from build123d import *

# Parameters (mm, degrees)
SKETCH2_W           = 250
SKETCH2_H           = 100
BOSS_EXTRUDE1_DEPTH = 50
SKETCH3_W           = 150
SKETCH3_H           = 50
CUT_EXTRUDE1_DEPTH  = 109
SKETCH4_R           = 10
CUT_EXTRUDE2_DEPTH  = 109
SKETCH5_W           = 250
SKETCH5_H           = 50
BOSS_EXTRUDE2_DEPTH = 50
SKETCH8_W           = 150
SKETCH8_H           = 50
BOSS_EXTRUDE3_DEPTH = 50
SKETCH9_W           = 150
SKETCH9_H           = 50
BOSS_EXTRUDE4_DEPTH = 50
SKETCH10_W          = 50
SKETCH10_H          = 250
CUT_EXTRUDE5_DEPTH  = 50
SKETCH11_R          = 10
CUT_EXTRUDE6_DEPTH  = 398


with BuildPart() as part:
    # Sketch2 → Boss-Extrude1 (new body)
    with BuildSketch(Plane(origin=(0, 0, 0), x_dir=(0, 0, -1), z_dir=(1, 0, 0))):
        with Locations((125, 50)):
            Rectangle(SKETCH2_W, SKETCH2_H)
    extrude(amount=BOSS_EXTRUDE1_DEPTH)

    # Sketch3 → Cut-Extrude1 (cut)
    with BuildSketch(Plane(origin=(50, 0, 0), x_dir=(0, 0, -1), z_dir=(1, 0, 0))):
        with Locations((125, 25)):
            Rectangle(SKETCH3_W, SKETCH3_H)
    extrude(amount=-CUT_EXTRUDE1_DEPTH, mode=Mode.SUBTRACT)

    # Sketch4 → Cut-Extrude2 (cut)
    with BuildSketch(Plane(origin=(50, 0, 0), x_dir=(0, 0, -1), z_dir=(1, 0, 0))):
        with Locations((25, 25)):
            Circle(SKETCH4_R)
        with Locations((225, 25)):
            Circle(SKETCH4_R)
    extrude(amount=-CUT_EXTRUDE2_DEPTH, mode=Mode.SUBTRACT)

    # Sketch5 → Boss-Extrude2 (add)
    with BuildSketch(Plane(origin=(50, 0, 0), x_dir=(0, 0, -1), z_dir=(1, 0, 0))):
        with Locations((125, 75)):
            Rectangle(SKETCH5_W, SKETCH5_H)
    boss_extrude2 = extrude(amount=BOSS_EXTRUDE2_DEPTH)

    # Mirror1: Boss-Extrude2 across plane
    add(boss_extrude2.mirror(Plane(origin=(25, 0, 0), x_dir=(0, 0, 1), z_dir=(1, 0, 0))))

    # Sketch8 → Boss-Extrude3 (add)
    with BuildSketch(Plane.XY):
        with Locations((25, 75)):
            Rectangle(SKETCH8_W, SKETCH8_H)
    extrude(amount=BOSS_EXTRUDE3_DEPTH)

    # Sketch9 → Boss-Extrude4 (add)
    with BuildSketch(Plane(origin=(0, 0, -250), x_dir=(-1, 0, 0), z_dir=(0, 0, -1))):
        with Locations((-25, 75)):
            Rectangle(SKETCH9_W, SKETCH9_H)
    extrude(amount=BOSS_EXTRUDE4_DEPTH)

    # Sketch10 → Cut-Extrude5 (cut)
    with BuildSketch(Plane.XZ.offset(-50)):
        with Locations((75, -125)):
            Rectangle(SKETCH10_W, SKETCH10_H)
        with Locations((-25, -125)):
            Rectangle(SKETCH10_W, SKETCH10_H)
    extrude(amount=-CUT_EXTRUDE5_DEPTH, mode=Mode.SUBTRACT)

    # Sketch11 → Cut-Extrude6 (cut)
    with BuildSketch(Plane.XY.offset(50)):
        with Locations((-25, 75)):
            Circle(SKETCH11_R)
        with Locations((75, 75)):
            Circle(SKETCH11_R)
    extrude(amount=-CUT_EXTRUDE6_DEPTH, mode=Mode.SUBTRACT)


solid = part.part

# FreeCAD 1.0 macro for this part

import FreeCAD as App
import Part
import Sketcher

V = App.Vector


def add_polygon(sketch, points):
    """Adds a closed chain of lines whose ends are joined by coincident constraints."""
    first, n = sketch.GeometryCount, len(points)
    for a, b in zip(points, points[1:] + points[:1]):
        sketch.addGeometry(Part.LineSegment(App.Vector(*a, 0), App.Vector(*b, 0)), False)
    for i in range(n):
        sketch.addConstraint(Sketcher.Constraint("Coincident", first + i, 2, first + (i + 1) % n, 1))

doc = App.newDocument("Part")
params = doc.addObject("Spreadsheet::Sheet", "Params")
for row, (alias, value) in enumerate([
    ("sketch1_width", "100 mm"),
    ("sketch1_height", "250 mm"),
    ("pad1_length", "50 mm"),
    ("sketch2_width", "50 mm"),
    ("sketch2_height", "150 mm"),
    ("pocket1_length", "109 mm"),
    ("sketch3_diameter", "20 mm"),
    ("pocket2_length", "109 mm"),
    ("sketch4_width", "50 mm"),
    ("sketch4_height", "250 mm"),
    ("pad2_length", "50 mm"),
    ("sketch5_width", "150 mm"),
    ("sketch5_height", "50 mm"),
    ("pad3_length", "50 mm"),
    ("sketch6_width", "150 mm"),
    ("sketch6_height", "50 mm"),
    ("pad4_length", "50 mm"),
    ("sketch7_width", "50 mm"),
    ("sketch7_height", "250 mm"),
    ("pocket3_length", "50 mm"),
    ("sketch8_diameter", "20 mm"),
    ("pocket4_length", "398 mm"),
], start=1):
    params.set(f"A{row}", alias)
    params.set(f"B{row}", "=" + value)
    params.setAlias(f"B{row}", alias)

body = doc.addObject("PartDesign::Body", "Body")

# Sketch on YZ plane
sketch1 = doc.addObject("Sketcher::SketchObject", "Sketch")
body.addObject(sketch1)
sketch1.AttachmentSupport = (doc.YZ_Plane, [""])
sketch1.MapMode = "FlatFace"
add_polygon(sketch1, [(100, 0), (0, 0), (0, -250), (100, -250)])  # lines 0-3
sketch1.addConstraint(Sketcher.Constraint("Horizontal", 0))
sketch1.addConstraint(Sketcher.Constraint("Vertical", 1))
sketch1.addConstraint(Sketcher.Constraint("Horizontal", 2))
sketch1.addConstraint(Sketcher.Constraint("Vertical", 3))
sketch1.addConstraint(Sketcher.Constraint("Coincident", 0, 2, -1, 1))
sketch1.addConstraint(Sketcher.Constraint("DistanceX", 0, 2, 0, 1, 100.0))
sketch1.addConstraint(Sketcher.Constraint("DistanceY", 1, 2, 1, 1, 250.0))
sketch1.setExpression("Constraints[9]", "Params.sketch1_width")
sketch1.setExpression("Constraints[10]", "Params.sketch1_height")
pad1 = doc.addObject("PartDesign::Pad", "Pad")
body.addObject(pad1)
pad1.Profile = sketch1
pad1.setExpression("Length", "Params.pad1_length")

# Sketch on YZ plane
sketch2 = doc.addObject("Sketcher::SketchObject", "Sketch001")
body.addObject(sketch2)
sketch2.AttachmentSupport = (doc.YZ_Plane, [""])
sketch2.MapMode = "FlatFace"
sketch2.AttachmentOffset = App.Placement(V(0, 0, 50), App.Rotation())
add_polygon(sketch2, [(50, -50), (0, -50), (0, -200), (50, -200)])  # lines 0-3
sketch2.addConstraint(Sketcher.Constraint("Horizontal", 0))
sketch2.addConstraint(Sketcher.Constraint("Vertical", 1))
sketch2.addConstraint(Sketcher.Constraint("Horizontal", 2))
sketch2.addConstraint(Sketcher.Constraint("Vertical", 3))
sketch2.addConstraint(Sketcher.Constraint("PointOnObject", 0, 2, -2))
sketch2.addConstraint(Sketcher.Constraint("DistanceX", 0, 2, 0, 1, 50.0))
sketch2.addConstraint(Sketcher.Constraint("DistanceY", 1, 2, 1, 1, 150.0))
sketch2.addConstraint(Sketcher.Constraint("DistanceY", 0, 2, -1, 1, 50.0))
sketch2.setExpression("Constraints[9]", "Params.sketch2_width")
sketch2.setExpression("Constraints[10]", "Params.sketch2_height")
pocket1 = doc.addObject("PartDesign::Pocket", "Pocket")
body.addObject(pocket1)
pocket1.Profile = sketch2
pocket1.setExpression("Length", "Params.pocket1_length")

# Sketch on YZ plane
sketch3 = doc.addObject("Sketcher::SketchObject", "Sketch002")
body.addObject(sketch3)
sketch3.AttachmentSupport = (doc.YZ_Plane, [""])
sketch3.MapMode = "FlatFace"
sketch3.AttachmentOffset = App.Placement(V(0, 0, 50), App.Rotation())
sketch3.addGeometry(Part.Circle(V(25, -25, 0), V(0, 0, 1), 10), False)
sketch3.addGeometry(Part.Circle(V(25, -225, 0), V(0, 0, 1), 10), False)
sketch3.addConstraint(Sketcher.Constraint("Equal", 0, 1))
sketch3.addConstraint(Sketcher.Constraint("Vertical", 0, 3, 1, 3))
sketch3.addConstraint(Sketcher.Constraint("Diameter", 0, 20.0))
sketch3.addConstraint(Sketcher.Constraint("DistanceX", -1, 1, 0, 3, 25.0))
sketch3.addConstraint(Sketcher.Constraint("DistanceY", 0, 3, -1, 1, 25.0))
sketch3.addConstraint(Sketcher.Constraint("DistanceY", 1, 3, -1, 1, 225.0))
sketch3.setExpression("Constraints[2]", "Params.sketch3_diameter")
pocket2 = doc.addObject("PartDesign::Pocket", "Pocket001")
body.addObject(pocket2)
pocket2.Profile = sketch3
pocket2.setExpression("Length", "Params.pocket2_length")

# Sketch on YZ plane
sketch4 = doc.addObject("Sketcher::SketchObject", "Sketch003")
body.addObject(sketch4)
sketch4.AttachmentSupport = (doc.YZ_Plane, [""])
sketch4.MapMode = "FlatFace"
sketch4.AttachmentOffset = App.Placement(V(0, 0, 50), App.Rotation())
add_polygon(sketch4, [(100, 0), (50, 0), (50, -250), (100, -250)])  # lines 0-3
sketch4.addConstraint(Sketcher.Constraint("Horizontal", 0))
sketch4.addConstraint(Sketcher.Constraint("Vertical", 1))
sketch4.addConstraint(Sketcher.Constraint("Horizontal", 2))
sketch4.addConstraint(Sketcher.Constraint("Vertical", 3))
sketch4.addConstraint(Sketcher.Constraint("PointOnObject", 0, 2, -1))
sketch4.addConstraint(Sketcher.Constraint("DistanceX", 0, 2, 0, 1, 50.0))
sketch4.addConstraint(Sketcher.Constraint("DistanceY", 1, 2, 1, 1, 250.0))
sketch4.addConstraint(Sketcher.Constraint("DistanceX", -1, 1, 0, 2, 50.0))
sketch4.setExpression("Constraints[9]", "Params.sketch4_width")
sketch4.setExpression("Constraints[10]", "Params.sketch4_height")
pad2 = doc.addObject("PartDesign::Pad", "Pad001")
body.addObject(pad2)
pad2.Profile = sketch4
pad2.setExpression("Length", "Params.pad2_length")
doc.recompute()

datumplane = doc.addObject("PartDesign::Plane", "DatumPlane")
body.addObject(datumplane)
datumplane.AttachmentSupport = (doc.YZ_Plane, [""])
datumplane.MapMode = "FlatFace"
datumplane.AttachmentOffset = App.Placement(V(0, 0, 25), App.Rotation())
mirrored = doc.addObject("PartDesign::Mirrored", "Mirrored")
body.addObject(mirrored)
mirrored.Originals = [pad2]
mirrored.MirrorPlane = (datumplane, [""])
body.Tip = mirrored

# Sketch on XY plane
sketch5 = doc.addObject("Sketcher::SketchObject", "Sketch004")
body.addObject(sketch5)
sketch5.AttachmentSupport = (doc.XY_Plane, [""])
sketch5.MapMode = "FlatFace"
add_polygon(sketch5, [(-50, 100), (-50, 50), (100, 50), (100, 100)])  # lines 0-3
sketch5.addConstraint(Sketcher.Constraint("Vertical", 0))
sketch5.addConstraint(Sketcher.Constraint("Horizontal", 1))
sketch5.addConstraint(Sketcher.Constraint("Vertical", 2))
sketch5.addConstraint(Sketcher.Constraint("Horizontal", 3))
sketch5.addConstraint(Sketcher.Constraint("DistanceX", 1, 1, 1, 2, 150.0))
sketch5.addConstraint(Sketcher.Constraint("DistanceY", 0, 2, 0, 1, 50.0))
sketch5.addConstraint(Sketcher.Constraint("DistanceX", 0, 2, -1, 1, 50.0))
sketch5.addConstraint(Sketcher.Constraint("DistanceY", -1, 1, 0, 2, 50.0))
sketch5.setExpression("Constraints[8]", "Params.sketch5_width")
sketch5.setExpression("Constraints[9]", "Params.sketch5_height")
pad3 = doc.addObject("PartDesign::Pad", "Pad002")
body.addObject(pad3)
pad3.Profile = sketch5
pad3.setExpression("Length", "Params.pad3_length")

# Sketch on XY plane
sketch6 = doc.addObject("Sketcher::SketchObject", "Sketch005")
body.addObject(sketch6)
sketch6.AttachmentSupport = (doc.XY_Plane, [""])
sketch6.MapMode = "FlatFace"
sketch6.AttachmentOffset = App.Placement(V(0, 0, -250), App.Rotation())
add_polygon(sketch6, [(100, 100), (100, 50), (-50, 50), (-50, 100)])  # lines 0-3
sketch6.addConstraint(Sketcher.Constraint("Vertical", 0))
sketch6.addConstraint(Sketcher.Constraint("Horizontal", 1))
sketch6.addConstraint(Sketcher.Constraint("Vertical", 2))
sketch6.addConstraint(Sketcher.Constraint("Horizontal", 3))
sketch6.addConstraint(Sketcher.Constraint("DistanceX", 1, 2, 1, 1, 150.0))
sketch6.addConstraint(Sketcher.Constraint("DistanceY", 0, 2, 0, 1, 50.0))
sketch6.addConstraint(Sketcher.Constraint("DistanceX", -1, 1, 0, 2, 100.0))
sketch6.addConstraint(Sketcher.Constraint("DistanceY", -1, 1, 0, 2, 50.0))
sketch6.setExpression("Constraints[8]", "Params.sketch6_width")
sketch6.setExpression("Constraints[9]", "Params.sketch6_height")
pad4 = doc.addObject("PartDesign::Pad", "Pad003")
body.addObject(pad4)
pad4.Profile = sketch6
pad4.setExpression("Length", "Params.pad4_length")
pad4.Reversed = True

# Sketch on XZ plane
sketch7 = doc.addObject("Sketcher::SketchObject", "Sketch006")
body.addObject(sketch7)
sketch7.AttachmentSupport = (doc.XZ_Plane, [""])
sketch7.MapMode = "FlatFace"
sketch7.AttachmentOffset = App.Placement(V(0, 0, -50), App.Rotation())
add_polygon(sketch7, [(50, 0), (50, -250), (100, -250), (100, 0)])  # lines 0-3
add_polygon(sketch7, [(-50, 0), (-50, -250), (0, -250), (0, 0)])  # lines 4-7
sketch7.addConstraint(Sketcher.Constraint("Vertical", 0))
sketch7.addConstraint(Sketcher.Constraint("Horizontal", 1))
sketch7.addConstraint(Sketcher.Constraint("Vertical", 2))
sketch7.addConstraint(Sketcher.Constraint("Horizontal", 3))
sketch7.addConstraint(Sketcher.Constraint("Vertical", 4))
sketch7.addConstraint(Sketcher.Constraint("Horizontal", 5))
sketch7.addConstraint(Sketcher.Constraint("Vertical", 6))
sketch7.addConstraint(Sketcher.Constraint("Horizontal", 7))
sketch7.addConstraint(Sketcher.Constraint("Coincident", 6, 2, -1, 1))
sketch7.addConstraint(Sketcher.Constraint("Symmetric", 3, 2, 7, 2, -1, 1))
sketch7.addConstraint(Sketcher.Constraint("Horizontal", 1, 2, 4, 2))
sketch7.addConstraint(Sketcher.Constraint("Equal", 3, 5))
sketch7.addConstraint(Sketcher.Constraint("DistanceX", 1, 1, 1, 2, 50.0))
sketch7.addConstraint(Sketcher.Constraint("DistanceY", 0, 2, 0, 1, 250.0))
sketch7.setExpression("Constraints[20]", "Params.sketch7_width")
sketch7.setExpression("Constraints[21]", "Params.sketch7_height")
pocket3 = doc.addObject("PartDesign::Pocket", "Pocket002")
body.addObject(pocket3)
pocket3.Profile = sketch7
pocket3.setExpression("Length", "Params.pocket3_length")

# Sketch on XY plane
sketch8 = doc.addObject("Sketcher::SketchObject", "Sketch007")
body.addObject(sketch8)
sketch8.AttachmentSupport = (doc.XY_Plane, [""])
sketch8.MapMode = "FlatFace"
sketch8.AttachmentOffset = App.Placement(V(0, 0, 50), App.Rotation())
sketch8.addGeometry(Part.Circle(V(-25, 75, 0), V(0, 0, 1), 10), False)
sketch8.addGeometry(Part.Circle(V(75, 75, 0), V(0, 0, 1), 10), False)
sketch8.addConstraint(Sketcher.Constraint("Equal", 0, 1))
sketch8.addConstraint(Sketcher.Constraint("Horizontal", 0, 3, 1, 3))
sketch8.addConstraint(Sketcher.Constraint("Diameter", 0, 20.0))
sketch8.addConstraint(Sketcher.Constraint("DistanceX", 0, 3, -1, 1, 25.0))
sketch8.addConstraint(Sketcher.Constraint("DistanceY", -1, 1, 0, 3, 75.0))
sketch8.addConstraint(Sketcher.Constraint("DistanceX", -1, 1, 1, 3, 75.0))
sketch8.setExpression("Constraints[2]", "Params.sketch8_diameter")
pocket4 = doc.addObject("PartDesign::Pocket", "Pocket003")
body.addObject(pocket4)
pocket4.Profile = sketch8
pocket4.setExpression("Length", "Params.pocket4_length")

doc.recompute()
